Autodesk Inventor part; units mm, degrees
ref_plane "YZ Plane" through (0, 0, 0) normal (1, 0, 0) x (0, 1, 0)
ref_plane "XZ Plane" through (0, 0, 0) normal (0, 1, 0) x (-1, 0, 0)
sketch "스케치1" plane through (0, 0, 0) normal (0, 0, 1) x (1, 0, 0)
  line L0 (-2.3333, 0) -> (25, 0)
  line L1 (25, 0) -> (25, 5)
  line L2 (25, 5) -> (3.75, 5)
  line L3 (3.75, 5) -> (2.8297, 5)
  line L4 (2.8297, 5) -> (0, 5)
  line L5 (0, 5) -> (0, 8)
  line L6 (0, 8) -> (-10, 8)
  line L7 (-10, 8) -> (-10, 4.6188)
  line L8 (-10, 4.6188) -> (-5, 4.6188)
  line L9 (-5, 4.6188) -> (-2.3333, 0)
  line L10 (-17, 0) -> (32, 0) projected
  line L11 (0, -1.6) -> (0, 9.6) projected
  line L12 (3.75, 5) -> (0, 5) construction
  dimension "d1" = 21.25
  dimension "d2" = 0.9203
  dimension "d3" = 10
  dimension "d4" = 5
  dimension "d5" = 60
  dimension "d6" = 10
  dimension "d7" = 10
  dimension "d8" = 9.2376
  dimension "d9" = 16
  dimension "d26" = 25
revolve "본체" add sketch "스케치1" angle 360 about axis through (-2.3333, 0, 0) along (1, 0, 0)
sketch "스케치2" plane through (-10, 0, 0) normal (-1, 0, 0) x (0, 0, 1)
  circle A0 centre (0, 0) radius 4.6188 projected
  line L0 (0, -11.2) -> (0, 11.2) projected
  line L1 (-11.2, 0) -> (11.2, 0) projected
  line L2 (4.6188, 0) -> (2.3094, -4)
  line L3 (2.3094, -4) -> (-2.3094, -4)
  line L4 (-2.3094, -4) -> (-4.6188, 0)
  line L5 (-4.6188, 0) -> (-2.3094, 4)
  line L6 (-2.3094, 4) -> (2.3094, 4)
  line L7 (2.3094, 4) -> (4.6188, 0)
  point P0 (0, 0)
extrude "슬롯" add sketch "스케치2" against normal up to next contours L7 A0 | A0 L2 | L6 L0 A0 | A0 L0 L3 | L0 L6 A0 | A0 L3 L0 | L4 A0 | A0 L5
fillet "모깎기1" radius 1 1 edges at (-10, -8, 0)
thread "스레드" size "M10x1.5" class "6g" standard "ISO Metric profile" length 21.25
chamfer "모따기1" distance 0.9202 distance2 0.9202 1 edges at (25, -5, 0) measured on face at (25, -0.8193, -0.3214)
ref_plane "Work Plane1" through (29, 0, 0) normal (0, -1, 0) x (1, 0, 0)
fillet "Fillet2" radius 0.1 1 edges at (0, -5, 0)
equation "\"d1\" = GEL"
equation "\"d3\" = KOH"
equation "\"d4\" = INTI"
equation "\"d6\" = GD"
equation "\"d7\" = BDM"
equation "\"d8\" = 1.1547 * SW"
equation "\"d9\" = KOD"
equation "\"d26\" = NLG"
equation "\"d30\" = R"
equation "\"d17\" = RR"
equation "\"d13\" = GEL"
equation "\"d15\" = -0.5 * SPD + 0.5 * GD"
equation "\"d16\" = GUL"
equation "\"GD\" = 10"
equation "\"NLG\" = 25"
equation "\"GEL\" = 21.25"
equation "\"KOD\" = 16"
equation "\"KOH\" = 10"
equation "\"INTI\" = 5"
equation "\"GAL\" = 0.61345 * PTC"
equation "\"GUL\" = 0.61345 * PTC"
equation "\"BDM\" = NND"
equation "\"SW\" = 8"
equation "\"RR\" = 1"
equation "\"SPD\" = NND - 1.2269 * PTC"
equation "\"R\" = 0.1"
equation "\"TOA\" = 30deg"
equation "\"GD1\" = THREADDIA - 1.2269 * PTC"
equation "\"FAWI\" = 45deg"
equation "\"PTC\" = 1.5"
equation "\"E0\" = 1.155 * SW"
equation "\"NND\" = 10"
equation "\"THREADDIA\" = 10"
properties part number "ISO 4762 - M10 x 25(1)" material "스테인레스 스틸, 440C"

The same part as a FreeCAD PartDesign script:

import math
import FreeCAD as App
import Part
import Sketcher

V = App.Vector
Q = App.Units.Quantity


def edges_at(feature, points):
    """Names of the edges that pass closest to the given points."""
    edges = feature.Shape.Edges
    near = lambda p: min(range(len(edges)), key=lambda i: edges[i].distToShape(Part.Vertex(*p))[0])
    return sorted({f"Edge{near(p) + 1}" for p in points})


def add_polygon(sketch, points):
    """Adds a closed chain of lines whose ends are joined by coincident constraints."""
    first, n = sketch.GeometryCount, len(points)
    for a, b in zip(points, points[1:] + points[:1]):
        sketch.addGeometry(Part.LineSegment(App.Vector(*a, 0), App.Vector(*b, 0)), False)
    for i in range(n):
        sketch.addConstraint(Sketcher.Constraint("Coincident", first + i, 2, first + (i + 1) % n, 1))

doc = App.newDocument("Part")
body = doc.addObject("PartDesign::Body", "Body")

sketch1 = body.newObject("Sketcher::SketchObject", "Sketch")
sketch1.AttachmentSupport = (doc.getObject("XY_Plane"), [""])
sketch1.MapMode = "FlatFace"
add_polygon(sketch1, [(-5, 4.6), (-2.3, 0), (25, 0), (25, 5), (0, 5), (0, 8), (-10, 8), (-10, 4.6)])
sketch1.addConstraint([
    Sketcher.Constraint("Horizontal", 1),
    Sketcher.Constraint("Vertical", 2),
    Sketcher.Constraint("Horizontal", 3),
    Sketcher.Constraint("Vertical", 4),
    Sketcher.Constraint("Horizontal", 5),
    Sketcher.Constraint("Vertical", 6),
    Sketcher.Constraint("Horizontal", 7),
    Sketcher.Constraint("PointOnObject", 0, 2, -1),
    Sketcher.Constraint("PointOnObject", 3, 2, -2),
    Sketcher.Constraint("Equal", 7, 2),
    Sketcher.Constraint("DistanceX", 3, 2, 3, 1, 25.0),
    Sketcher.Constraint("DistanceX", 5, 2, 5, 1, 10.0),
    Sketcher.Constraint("DistanceX", 7, 1, 7, 2, 5.0),
    Sketcher.Constraint("Angle", 0, Q("-59.9997 deg")),
    Sketcher.Constraint("DistanceY", 4, 1, 4, 2, 3.0),
    Sketcher.Constraint("DistanceX", 1, 1, 1, 2, 27.3333),
])
revolution = body.newObject("PartDesign::Revolution", "Revolution")
revolution.Profile = sketch1
revolution.ReferenceAxis = (sketch1, ["H_Axis"])
revolution.Angle = 360

sketch2 = body.newObject("Sketcher::SketchObject", "Sketch001")
sketch2.AttachmentSupport = (doc.getObject("YZ_Plane"), [""])
sketch2.MapMode = "FlatFace"
sketch2.AttachmentOffset = App.Placement(V(0, 0, -10), App.Rotation())
sketch2.addGeometry([
    Part.LineSegment(V(4, 2.3, 0), V(0, 4.6, 0)),
    Part.ArcOfCircle(Part.Circle(V(0, 0, 0), V(0, 0, 1), 4.6), math.radians(30), math.radians(90)),
    Part.ArcOfCircle(Part.Circle(V(0, 0, 0), V(0, 0, 1), 4.6), math.radians(90), math.radians(150)),
    Part.LineSegment(V(0, 4.6, 0), V(-4, 2.3, 0)),
    Part.ArcOfCircle(Part.Circle(V(0, 0, 0), V(0, 0, 1), 4.6), math.radians(-30), math.radians(30)),
    Part.LineSegment(V(4, 2.3, 0), V(4, -2.3, 0)),
    Part.LineSegment(V(-4, 2.3, 0), V(-4, -2.3, 0)),
    Part.ArcOfCircle(Part.Circle(V(0, 0, 0), V(0, 0, 1), 4.6), math.radians(150), math.radians(210)),
    Part.LineSegment(V(-4, -2.3, 0), V(0, -4.6, 0)),
    Part.ArcOfCircle(Part.Circle(V(0, 0, 0), V(0, 0, 1), 4.6), math.radians(-150), math.radians(-90)),
    Part.ArcOfCircle(Part.Circle(V(0, 0, 0), V(0, 0, 1), 4.6), math.radians(-90), math.radians(-30)),
    Part.LineSegment(V(0, -4.6, 0), V(4, -2.3, 0)),
], False)
sketch2.addConstraint([
    Sketcher.Constraint("Coincident", 0, 1, 1, 1),
    Sketcher.Constraint("Coincident", 1, 2, 0, 2),
    Sketcher.Constraint("Coincident", 2, 1, 3, 1),
    Sketcher.Constraint("Coincident", 3, 2, 2, 2),
    Sketcher.Constraint("Coincident", 4, 1, 5, 2),
    Sketcher.Constraint("Coincident", 5, 1, 4, 2),
    Sketcher.Constraint("Coincident", 6, 1, 7, 1),
    Sketcher.Constraint("Coincident", 7, 2, 6, 2),
    Sketcher.Constraint("Coincident", 8, 1, 9, 1),
    Sketcher.Constraint("Coincident", 9, 2, 8, 2),
    Sketcher.Constraint("Coincident", 10, 1, 11, 1),
    Sketcher.Constraint("Coincident", 11, 2, 10, 2),
    Sketcher.Constraint("Vertical", 5),
    Sketcher.Constraint("Vertical", 6),
    Sketcher.Constraint("Coincident", 1, 3, -1, 1),
    Sketcher.Constraint("Coincident", 2, 3, -1, 1),
    Sketcher.Constraint("Coincident", 4, 3, -1, 1),
    Sketcher.Constraint("Coincident", 7, 3, -1, 1),
    Sketcher.Constraint("Coincident", 9, 3, -1, 1),
    Sketcher.Constraint("Coincident", 10, 3, -1, 1),
    Sketcher.Constraint("Coincident", 2, 1, 1, 2),
    Sketcher.Constraint("Coincident", 5, 1, 0, 1),
    Sketcher.Constraint("Coincident", 6, 1, 3, 2),
    Sketcher.Constraint("Coincident", 8, 1, 7, 2),
    Sketcher.Constraint("Coincident", 10, 1, 9, 2),
    Sketcher.Constraint("PointOnObject", 1, 2, -2),
    Sketcher.Constraint("PointOnObject", 9, 2, -2),
    Sketcher.Constraint("Parallel", 0, 8),
    Sketcher.Constraint("Parallel", 3, 11),
    Sketcher.Constraint("Angle", 0, Q("150 deg")),
    Sketcher.Constraint("DistanceX", -1, 1, 0, 1, 4.0),
])
pad1 = body.newObject("PartDesign::Pad", "Pad")
pad1.Profile = sketch2
pad1.Type = "UpToFirst"
doc.recompute()

fillet = body.newObject("PartDesign::Fillet", "Fillet")
fillet.Base = (pad1, edges_at(pad1, [(-10, -8, 0)]))
fillet.Radius = 1
doc.recompute()

chamfer = body.newObject("PartDesign::Chamfer", "Chamfer")
chamfer.Base = (fillet, edges_at(fillet, [(25, -5, 0)]))
chamfer.ChamferType = "Two distances"
chamfer.Size = 0.9202
chamfer.Size2 = 0.9202
doc.recompute()

fillet2 = body.newObject("PartDesign::Fillet", "Fillet001")
fillet2.Base = (chamfer, edges_at(chamfer, [(0, -5, 0)]))
fillet2.Radius = 0.1

doc.recompute()
